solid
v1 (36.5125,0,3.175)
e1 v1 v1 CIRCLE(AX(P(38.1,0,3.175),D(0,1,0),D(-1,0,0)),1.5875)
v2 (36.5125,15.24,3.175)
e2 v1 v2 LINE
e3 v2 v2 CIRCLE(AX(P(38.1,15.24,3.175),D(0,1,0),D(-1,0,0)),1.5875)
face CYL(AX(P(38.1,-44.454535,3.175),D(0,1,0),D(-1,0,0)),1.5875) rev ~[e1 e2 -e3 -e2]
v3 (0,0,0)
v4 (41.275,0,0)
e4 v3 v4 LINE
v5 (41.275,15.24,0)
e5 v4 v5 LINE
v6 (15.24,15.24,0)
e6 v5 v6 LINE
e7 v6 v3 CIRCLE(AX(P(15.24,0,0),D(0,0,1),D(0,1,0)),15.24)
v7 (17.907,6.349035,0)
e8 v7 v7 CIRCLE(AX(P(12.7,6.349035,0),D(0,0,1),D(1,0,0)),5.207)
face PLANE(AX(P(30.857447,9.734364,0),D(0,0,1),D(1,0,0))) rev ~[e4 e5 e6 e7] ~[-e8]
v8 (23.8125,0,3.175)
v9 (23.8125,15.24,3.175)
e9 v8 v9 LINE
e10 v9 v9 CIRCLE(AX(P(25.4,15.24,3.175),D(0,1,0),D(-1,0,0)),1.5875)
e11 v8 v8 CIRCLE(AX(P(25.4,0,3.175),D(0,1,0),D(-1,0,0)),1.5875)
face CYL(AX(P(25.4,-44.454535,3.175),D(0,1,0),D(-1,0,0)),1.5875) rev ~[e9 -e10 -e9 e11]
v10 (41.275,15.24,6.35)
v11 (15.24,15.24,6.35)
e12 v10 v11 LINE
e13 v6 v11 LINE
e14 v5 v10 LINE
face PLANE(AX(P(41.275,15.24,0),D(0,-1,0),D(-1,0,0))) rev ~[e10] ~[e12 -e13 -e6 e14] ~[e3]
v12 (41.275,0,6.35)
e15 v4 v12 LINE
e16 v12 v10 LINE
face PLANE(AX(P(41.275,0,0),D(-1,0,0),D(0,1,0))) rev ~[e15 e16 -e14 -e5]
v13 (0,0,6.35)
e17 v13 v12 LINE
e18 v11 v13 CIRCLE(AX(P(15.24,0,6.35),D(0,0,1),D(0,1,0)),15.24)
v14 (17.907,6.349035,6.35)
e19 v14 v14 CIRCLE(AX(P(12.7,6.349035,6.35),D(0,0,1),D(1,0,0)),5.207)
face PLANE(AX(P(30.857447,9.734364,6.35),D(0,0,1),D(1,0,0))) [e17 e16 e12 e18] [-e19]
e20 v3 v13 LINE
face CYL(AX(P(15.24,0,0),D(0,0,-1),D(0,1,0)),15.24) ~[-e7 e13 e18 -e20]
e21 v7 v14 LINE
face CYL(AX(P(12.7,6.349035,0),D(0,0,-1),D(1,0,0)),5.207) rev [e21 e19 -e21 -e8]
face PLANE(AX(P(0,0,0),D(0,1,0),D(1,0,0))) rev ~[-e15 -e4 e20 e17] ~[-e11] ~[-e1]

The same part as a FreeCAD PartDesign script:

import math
import FreeCAD as App
import Part
import Sketcher
Q = App.Units.Quantity

doc = App.newDocument("Part")
body = doc.addObject("PartDesign::Body", "Body")

sketch1 = body.newObject("Sketcher::SketchObject", "Sketch")
sketch1.AttachmentSupport = (doc.getObject("XY_Plane"), [""])
sketch1.MapMode = "FlatFace"
sketch1.addGeometry(Part.LineSegment(App.Vector(41, 0, 0), App.Vector(41, 15, 0)), False)
sketch1.addGeometry(Part.LineSegment(App.Vector(41, 15, 0), App.Vector(15, 15, 0)), False)
sketch1.addGeometry(Part.ArcOfCircle(Part.Circle(App.Vector(15, 0, 0), App.Vector(0, 0, 1), 15), math.radians(90), math.radians(180)), False)
sketch1.addGeometry(Part.LineSegment(App.Vector(0, 0, 0), App.Vector(41, 0, 0)), False)
sketch1.addGeometry(Part.Circle(App.Vector(13, 6, 0), App.Vector(0, 0, 1), 5), False)
sketch1.addConstraint(Sketcher.Constraint("Coincident", 0, 2, 1, 1))
sketch1.addConstraint(Sketcher.Constraint("Tangent", 1, 2, 2, 1))
sketch1.addConstraint(Sketcher.Constraint("Coincident", 2, 2, 3, 1))
sketch1.addConstraint(Sketcher.Constraint("Coincident", 3, 2, 0, 1))
sketch1.addConstraint(Sketcher.Constraint("Vertical", 0))
sketch1.addConstraint(Sketcher.Constraint("Horizontal", 1))
sketch1.addConstraint(Sketcher.Constraint("Horizontal", 3))
sketch1.addConstraint(Sketcher.Constraint("Coincident", 2, 2, -1, 1))
sketch1.addConstraint(Sketcher.Constraint("PointOnObject", 2, 3, -1))
sketch1.addConstraint(Sketcher.Constraint("Radius", 2, Q("0.6 in")))
sketch1.addConstraint(Sketcher.Constraint("Diameter", 4, Q("0.41 in")))
sketch1.addConstraint(Sketcher.Constraint("DistanceX", -1, 1, 4, 3, Q("0.5 in")))
sketch1.addConstraint(Sketcher.Constraint("DistanceX", 1, 2, 1, 1, Q("1.025 in")))
sketch1.addConstraint(Sketcher.Constraint("DistanceY", -1, 1, 4, 3, Q("6.349035 mm")))
pad1 = body.newObject("PartDesign::Pad", "Pad")
pad1.Profile = sketch1
pad1.Length = Q("0.25 in")

sketch2 = body.newObject("Sketcher::SketchObject", "Sketch001")
sketch2.AttachmentSupport = (doc.getObject("XZ_Plane"), [""])
sketch2.MapMode = "FlatFace"
sketch2.addGeometry(Part.Circle(App.Vector(25.4, 3.2, 0), App.Vector(0, 0, 1), 1.6), False)
sketch2.addGeometry(Part.Circle(App.Vector(38.1, 3.2, 0), App.Vector(0, 0, 1), 1.6), False)
sketch2.addConstraint(Sketcher.Constraint("Equal", 0, 1))
sketch2.addConstraint(Sketcher.Constraint("Horizontal", 0, 3, 1, 3))
sketch2.addConstraint(Sketcher.Constraint("Diameter", 0, Q("0.125 in")))
sketch2.addConstraint(Sketcher.Constraint("DistanceX", -1, 1, 0, 3, Q("1 in")))
sketch2.addConstraint(Sketcher.Constraint("DistanceX", -1, 1, 1, 3, Q("1.5 in")))
sketch2.addConstraint(Sketcher.Constraint("DistanceY", -1, 1, 0, 3, Q("0.125 in")))
doc.recompute()
hole = body.newObject("PartDesign::Hole", "Hole")
hole.Profile = sketch2
hole.ThreadType = "None"
hole.Diameter = Q("0.125 in")
hole.DepthType = "ThroughAll"

doc.recompute()
